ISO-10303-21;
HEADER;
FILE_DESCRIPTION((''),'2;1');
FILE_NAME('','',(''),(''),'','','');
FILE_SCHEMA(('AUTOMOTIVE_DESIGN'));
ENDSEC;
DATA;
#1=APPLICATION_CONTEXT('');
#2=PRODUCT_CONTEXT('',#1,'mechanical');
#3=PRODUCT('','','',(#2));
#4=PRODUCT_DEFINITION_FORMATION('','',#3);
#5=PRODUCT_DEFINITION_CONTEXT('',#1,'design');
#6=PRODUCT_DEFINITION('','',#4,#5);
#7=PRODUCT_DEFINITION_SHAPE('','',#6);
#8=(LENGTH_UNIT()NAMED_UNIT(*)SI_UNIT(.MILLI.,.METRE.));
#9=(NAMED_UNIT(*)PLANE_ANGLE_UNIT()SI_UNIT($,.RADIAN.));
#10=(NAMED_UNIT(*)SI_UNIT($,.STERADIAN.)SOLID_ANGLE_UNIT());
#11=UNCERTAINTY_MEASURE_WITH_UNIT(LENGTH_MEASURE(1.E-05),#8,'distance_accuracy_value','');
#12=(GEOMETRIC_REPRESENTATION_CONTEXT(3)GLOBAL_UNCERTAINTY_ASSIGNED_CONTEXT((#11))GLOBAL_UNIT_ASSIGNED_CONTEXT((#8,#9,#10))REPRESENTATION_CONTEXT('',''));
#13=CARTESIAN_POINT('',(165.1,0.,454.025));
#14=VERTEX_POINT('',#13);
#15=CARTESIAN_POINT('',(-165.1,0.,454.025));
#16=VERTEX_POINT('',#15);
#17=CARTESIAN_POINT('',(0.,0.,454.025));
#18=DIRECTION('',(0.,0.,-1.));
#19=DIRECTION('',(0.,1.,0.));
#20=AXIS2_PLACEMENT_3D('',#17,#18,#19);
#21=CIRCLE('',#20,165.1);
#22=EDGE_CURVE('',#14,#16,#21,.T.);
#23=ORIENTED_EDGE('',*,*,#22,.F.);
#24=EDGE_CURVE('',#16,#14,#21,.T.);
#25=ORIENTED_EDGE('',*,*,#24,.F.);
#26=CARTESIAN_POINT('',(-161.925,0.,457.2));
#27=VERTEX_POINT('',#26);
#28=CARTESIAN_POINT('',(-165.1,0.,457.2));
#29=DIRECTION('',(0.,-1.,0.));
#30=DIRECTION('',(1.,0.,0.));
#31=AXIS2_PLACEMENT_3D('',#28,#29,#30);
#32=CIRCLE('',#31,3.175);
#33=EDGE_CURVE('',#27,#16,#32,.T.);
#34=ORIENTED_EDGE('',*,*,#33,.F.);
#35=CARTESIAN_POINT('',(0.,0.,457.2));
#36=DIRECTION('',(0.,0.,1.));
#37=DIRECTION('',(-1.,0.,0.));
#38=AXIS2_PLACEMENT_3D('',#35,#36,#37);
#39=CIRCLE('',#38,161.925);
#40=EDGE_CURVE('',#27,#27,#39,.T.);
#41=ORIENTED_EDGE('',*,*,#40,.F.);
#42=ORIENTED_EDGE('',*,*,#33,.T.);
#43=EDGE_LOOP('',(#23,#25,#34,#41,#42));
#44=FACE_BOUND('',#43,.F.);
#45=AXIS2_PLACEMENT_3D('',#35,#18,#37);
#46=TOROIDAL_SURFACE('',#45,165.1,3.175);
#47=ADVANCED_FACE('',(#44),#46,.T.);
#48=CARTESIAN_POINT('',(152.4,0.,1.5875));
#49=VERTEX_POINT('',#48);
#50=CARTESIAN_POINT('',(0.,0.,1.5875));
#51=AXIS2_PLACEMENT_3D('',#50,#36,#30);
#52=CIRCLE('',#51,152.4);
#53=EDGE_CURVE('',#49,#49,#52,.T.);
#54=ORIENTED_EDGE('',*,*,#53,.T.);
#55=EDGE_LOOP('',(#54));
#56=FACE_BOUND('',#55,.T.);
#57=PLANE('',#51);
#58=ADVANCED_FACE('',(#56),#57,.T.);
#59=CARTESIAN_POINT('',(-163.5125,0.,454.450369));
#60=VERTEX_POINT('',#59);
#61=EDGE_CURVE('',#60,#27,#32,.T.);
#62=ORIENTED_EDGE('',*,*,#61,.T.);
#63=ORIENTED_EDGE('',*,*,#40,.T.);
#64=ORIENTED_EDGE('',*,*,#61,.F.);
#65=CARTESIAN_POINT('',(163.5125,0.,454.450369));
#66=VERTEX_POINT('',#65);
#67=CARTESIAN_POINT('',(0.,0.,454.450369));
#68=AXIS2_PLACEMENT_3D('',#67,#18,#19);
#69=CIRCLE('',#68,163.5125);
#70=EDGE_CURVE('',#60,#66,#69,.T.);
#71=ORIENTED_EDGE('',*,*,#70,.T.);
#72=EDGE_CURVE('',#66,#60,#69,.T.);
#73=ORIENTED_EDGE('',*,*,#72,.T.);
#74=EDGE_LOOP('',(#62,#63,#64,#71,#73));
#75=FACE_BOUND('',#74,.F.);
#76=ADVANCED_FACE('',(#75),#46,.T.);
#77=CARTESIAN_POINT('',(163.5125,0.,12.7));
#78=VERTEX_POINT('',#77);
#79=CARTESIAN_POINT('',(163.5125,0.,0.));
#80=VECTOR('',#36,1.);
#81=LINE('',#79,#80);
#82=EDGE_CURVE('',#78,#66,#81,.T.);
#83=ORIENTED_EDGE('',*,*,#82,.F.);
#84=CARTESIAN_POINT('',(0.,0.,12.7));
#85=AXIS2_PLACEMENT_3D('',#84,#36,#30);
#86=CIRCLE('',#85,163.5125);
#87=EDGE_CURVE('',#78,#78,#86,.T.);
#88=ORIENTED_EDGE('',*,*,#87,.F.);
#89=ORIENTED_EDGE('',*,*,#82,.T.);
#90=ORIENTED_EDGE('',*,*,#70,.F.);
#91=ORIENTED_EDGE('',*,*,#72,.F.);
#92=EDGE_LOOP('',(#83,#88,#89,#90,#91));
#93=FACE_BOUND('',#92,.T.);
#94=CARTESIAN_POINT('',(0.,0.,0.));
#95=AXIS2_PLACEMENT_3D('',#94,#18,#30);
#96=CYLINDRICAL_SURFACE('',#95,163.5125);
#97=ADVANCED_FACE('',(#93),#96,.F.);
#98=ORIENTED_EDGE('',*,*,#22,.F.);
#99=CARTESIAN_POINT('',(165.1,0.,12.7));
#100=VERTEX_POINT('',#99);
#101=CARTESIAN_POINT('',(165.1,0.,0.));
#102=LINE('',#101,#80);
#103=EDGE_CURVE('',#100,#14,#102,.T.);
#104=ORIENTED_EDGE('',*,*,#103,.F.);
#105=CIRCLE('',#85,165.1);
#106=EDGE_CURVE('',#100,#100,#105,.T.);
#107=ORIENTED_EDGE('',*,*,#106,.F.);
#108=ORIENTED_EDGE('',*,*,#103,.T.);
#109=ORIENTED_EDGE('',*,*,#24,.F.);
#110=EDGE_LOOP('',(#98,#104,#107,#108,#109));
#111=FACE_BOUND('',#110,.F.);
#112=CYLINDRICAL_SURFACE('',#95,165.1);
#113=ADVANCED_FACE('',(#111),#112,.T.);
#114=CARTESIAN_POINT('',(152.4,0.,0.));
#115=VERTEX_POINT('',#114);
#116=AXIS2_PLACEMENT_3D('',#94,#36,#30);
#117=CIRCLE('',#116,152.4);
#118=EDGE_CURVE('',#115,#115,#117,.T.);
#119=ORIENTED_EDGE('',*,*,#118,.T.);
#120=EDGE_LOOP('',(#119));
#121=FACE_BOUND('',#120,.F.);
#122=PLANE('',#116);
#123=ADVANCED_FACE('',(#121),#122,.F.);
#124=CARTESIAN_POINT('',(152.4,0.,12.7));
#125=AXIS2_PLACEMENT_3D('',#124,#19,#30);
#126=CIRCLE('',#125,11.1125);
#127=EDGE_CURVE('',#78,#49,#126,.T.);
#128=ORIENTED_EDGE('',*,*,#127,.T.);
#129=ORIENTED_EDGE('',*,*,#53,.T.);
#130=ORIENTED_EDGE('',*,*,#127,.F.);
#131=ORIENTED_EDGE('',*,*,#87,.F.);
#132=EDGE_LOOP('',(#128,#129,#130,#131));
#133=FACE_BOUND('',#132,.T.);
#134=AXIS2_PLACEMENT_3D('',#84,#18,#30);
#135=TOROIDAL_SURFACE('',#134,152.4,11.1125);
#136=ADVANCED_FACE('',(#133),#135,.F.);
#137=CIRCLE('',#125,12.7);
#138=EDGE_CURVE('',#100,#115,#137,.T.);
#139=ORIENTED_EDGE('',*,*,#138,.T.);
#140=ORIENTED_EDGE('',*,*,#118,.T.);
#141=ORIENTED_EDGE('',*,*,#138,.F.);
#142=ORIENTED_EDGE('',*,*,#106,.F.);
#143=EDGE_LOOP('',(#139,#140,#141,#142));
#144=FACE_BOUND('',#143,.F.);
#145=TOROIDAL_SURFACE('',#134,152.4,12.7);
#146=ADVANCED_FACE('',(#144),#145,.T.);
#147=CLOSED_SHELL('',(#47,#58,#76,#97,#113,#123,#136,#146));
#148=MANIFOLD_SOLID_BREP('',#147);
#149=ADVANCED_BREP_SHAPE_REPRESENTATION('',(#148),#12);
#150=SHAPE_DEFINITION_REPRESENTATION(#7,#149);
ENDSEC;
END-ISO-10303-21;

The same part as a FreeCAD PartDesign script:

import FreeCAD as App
import Part
import Sketcher
Q = App.Units.Quantity


def edges_at(feature, points):
    """Names of the edges that pass closest to the given points."""
    edges = feature.Shape.Edges
    near = lambda p: min(range(len(edges)), key=lambda i: edges[i].distToShape(Part.Vertex(*p))[0])
    return sorted({f"Edge{near(p) + 1}" for p in points})


def faces_at(feature, points):
    """Names of the faces that lie closest to the given points."""
    faces = feature.Shape.Faces
    near = lambda p: min(range(len(faces)), key=lambda i: faces[i].distToShape(Part.Vertex(*p))[0])
    return sorted({f"Face{near(p) + 1}" for p in points})

doc = App.newDocument("Part")
params = doc.addObject("Spreadsheet::Sheet", "Params")
for row, (alias, value) in enumerate([
    ("sketch1_diameter", "13 in"),
    ("pad1_length", "18 in"),
    ("fillet_radius", "0.5 in"),
    ("thickness_wall", "0.0625 in"),
    ("sketch2_diameter", "0.25 in"),
    ("revolution_angle", "360 deg"),
], start=1):
    params.set(f"A{row}", alias)
    params.set(f"B{row}", "=" + value)
    params.setAlias(f"B{row}", alias)

body = doc.addObject("PartDesign::Body", "Body")

# Sketch on XY plane
sketch1 = body.newObject("Sketcher::SketchObject", "Sketch")
sketch1.AttachmentSupport = (doc.getObject("XY_Plane"), [""])
sketch1.MapMode = "FlatFace"
sketch1.addGeometry(Part.Circle(App.Vector(0, 0, 0), App.Vector(0, 0, 1), 165), False)
sketch1.addConstraint(Sketcher.Constraint("Coincident", 0, 3, -1, 1))
sketch1.addConstraint(Sketcher.Constraint("Diameter", 0, Q("13 in")))
sketch1.setExpression("Constraints[1]", "Params.sketch1_diameter")
pad1 = body.newObject("PartDesign::Pad", "Pad")
pad1.Profile = sketch1
pad1.setExpression("Length", "Params.pad1_length")
doc.recompute()

fillet = body.newObject("PartDesign::Fillet", "Fillet")
fillet.Base = (pad1, edges_at(pad1, [(-165.1, 0, 0)]))
fillet.setExpression("Radius", "Params.fillet_radius")
doc.recompute()

thickness = body.newObject("PartDesign::Thickness", "Thickness")
thickness.Base = (fillet, faces_at(fillet, [(0, 0, 457.2)]))
thickness.setExpression("Value", "Params.thickness_wall")
thickness.Reversed = True
thickness.Join = "Arc"

# Sketch on XZ plane
sketch2 = body.newObject("Sketcher::SketchObject", "Sketch001")
sketch2.AttachmentSupport = (doc.getObject("XZ_Plane"), [""])
sketch2.MapMode = "FlatFace"
sketch2.addGeometry(Part.Circle(App.Vector(-165.1, 457.2, 0), App.Vector(0, 0, 1), 3.2), False)
sketch2.addConstraint(Sketcher.Constraint("Diameter", 0, Q("0.25 in")))
sketch2.addConstraint(Sketcher.Constraint("DistanceY", -1, 1, 0, 3, Q("18 in")))
sketch2.addConstraint(Sketcher.Constraint("DistanceX", 0, 3, -1, 1, Q("6.5 in")))
sketch2.setExpression("Constraints[0]", "Params.sketch2_diameter")
revolution = body.newObject("PartDesign::Revolution", "Revolution")
revolution.Profile = sketch2
revolution.ReferenceAxis = (sketch2, ["V_Axis"])
revolution.setExpression("Angle", "Params.revolution_angle")

doc.recompute()
